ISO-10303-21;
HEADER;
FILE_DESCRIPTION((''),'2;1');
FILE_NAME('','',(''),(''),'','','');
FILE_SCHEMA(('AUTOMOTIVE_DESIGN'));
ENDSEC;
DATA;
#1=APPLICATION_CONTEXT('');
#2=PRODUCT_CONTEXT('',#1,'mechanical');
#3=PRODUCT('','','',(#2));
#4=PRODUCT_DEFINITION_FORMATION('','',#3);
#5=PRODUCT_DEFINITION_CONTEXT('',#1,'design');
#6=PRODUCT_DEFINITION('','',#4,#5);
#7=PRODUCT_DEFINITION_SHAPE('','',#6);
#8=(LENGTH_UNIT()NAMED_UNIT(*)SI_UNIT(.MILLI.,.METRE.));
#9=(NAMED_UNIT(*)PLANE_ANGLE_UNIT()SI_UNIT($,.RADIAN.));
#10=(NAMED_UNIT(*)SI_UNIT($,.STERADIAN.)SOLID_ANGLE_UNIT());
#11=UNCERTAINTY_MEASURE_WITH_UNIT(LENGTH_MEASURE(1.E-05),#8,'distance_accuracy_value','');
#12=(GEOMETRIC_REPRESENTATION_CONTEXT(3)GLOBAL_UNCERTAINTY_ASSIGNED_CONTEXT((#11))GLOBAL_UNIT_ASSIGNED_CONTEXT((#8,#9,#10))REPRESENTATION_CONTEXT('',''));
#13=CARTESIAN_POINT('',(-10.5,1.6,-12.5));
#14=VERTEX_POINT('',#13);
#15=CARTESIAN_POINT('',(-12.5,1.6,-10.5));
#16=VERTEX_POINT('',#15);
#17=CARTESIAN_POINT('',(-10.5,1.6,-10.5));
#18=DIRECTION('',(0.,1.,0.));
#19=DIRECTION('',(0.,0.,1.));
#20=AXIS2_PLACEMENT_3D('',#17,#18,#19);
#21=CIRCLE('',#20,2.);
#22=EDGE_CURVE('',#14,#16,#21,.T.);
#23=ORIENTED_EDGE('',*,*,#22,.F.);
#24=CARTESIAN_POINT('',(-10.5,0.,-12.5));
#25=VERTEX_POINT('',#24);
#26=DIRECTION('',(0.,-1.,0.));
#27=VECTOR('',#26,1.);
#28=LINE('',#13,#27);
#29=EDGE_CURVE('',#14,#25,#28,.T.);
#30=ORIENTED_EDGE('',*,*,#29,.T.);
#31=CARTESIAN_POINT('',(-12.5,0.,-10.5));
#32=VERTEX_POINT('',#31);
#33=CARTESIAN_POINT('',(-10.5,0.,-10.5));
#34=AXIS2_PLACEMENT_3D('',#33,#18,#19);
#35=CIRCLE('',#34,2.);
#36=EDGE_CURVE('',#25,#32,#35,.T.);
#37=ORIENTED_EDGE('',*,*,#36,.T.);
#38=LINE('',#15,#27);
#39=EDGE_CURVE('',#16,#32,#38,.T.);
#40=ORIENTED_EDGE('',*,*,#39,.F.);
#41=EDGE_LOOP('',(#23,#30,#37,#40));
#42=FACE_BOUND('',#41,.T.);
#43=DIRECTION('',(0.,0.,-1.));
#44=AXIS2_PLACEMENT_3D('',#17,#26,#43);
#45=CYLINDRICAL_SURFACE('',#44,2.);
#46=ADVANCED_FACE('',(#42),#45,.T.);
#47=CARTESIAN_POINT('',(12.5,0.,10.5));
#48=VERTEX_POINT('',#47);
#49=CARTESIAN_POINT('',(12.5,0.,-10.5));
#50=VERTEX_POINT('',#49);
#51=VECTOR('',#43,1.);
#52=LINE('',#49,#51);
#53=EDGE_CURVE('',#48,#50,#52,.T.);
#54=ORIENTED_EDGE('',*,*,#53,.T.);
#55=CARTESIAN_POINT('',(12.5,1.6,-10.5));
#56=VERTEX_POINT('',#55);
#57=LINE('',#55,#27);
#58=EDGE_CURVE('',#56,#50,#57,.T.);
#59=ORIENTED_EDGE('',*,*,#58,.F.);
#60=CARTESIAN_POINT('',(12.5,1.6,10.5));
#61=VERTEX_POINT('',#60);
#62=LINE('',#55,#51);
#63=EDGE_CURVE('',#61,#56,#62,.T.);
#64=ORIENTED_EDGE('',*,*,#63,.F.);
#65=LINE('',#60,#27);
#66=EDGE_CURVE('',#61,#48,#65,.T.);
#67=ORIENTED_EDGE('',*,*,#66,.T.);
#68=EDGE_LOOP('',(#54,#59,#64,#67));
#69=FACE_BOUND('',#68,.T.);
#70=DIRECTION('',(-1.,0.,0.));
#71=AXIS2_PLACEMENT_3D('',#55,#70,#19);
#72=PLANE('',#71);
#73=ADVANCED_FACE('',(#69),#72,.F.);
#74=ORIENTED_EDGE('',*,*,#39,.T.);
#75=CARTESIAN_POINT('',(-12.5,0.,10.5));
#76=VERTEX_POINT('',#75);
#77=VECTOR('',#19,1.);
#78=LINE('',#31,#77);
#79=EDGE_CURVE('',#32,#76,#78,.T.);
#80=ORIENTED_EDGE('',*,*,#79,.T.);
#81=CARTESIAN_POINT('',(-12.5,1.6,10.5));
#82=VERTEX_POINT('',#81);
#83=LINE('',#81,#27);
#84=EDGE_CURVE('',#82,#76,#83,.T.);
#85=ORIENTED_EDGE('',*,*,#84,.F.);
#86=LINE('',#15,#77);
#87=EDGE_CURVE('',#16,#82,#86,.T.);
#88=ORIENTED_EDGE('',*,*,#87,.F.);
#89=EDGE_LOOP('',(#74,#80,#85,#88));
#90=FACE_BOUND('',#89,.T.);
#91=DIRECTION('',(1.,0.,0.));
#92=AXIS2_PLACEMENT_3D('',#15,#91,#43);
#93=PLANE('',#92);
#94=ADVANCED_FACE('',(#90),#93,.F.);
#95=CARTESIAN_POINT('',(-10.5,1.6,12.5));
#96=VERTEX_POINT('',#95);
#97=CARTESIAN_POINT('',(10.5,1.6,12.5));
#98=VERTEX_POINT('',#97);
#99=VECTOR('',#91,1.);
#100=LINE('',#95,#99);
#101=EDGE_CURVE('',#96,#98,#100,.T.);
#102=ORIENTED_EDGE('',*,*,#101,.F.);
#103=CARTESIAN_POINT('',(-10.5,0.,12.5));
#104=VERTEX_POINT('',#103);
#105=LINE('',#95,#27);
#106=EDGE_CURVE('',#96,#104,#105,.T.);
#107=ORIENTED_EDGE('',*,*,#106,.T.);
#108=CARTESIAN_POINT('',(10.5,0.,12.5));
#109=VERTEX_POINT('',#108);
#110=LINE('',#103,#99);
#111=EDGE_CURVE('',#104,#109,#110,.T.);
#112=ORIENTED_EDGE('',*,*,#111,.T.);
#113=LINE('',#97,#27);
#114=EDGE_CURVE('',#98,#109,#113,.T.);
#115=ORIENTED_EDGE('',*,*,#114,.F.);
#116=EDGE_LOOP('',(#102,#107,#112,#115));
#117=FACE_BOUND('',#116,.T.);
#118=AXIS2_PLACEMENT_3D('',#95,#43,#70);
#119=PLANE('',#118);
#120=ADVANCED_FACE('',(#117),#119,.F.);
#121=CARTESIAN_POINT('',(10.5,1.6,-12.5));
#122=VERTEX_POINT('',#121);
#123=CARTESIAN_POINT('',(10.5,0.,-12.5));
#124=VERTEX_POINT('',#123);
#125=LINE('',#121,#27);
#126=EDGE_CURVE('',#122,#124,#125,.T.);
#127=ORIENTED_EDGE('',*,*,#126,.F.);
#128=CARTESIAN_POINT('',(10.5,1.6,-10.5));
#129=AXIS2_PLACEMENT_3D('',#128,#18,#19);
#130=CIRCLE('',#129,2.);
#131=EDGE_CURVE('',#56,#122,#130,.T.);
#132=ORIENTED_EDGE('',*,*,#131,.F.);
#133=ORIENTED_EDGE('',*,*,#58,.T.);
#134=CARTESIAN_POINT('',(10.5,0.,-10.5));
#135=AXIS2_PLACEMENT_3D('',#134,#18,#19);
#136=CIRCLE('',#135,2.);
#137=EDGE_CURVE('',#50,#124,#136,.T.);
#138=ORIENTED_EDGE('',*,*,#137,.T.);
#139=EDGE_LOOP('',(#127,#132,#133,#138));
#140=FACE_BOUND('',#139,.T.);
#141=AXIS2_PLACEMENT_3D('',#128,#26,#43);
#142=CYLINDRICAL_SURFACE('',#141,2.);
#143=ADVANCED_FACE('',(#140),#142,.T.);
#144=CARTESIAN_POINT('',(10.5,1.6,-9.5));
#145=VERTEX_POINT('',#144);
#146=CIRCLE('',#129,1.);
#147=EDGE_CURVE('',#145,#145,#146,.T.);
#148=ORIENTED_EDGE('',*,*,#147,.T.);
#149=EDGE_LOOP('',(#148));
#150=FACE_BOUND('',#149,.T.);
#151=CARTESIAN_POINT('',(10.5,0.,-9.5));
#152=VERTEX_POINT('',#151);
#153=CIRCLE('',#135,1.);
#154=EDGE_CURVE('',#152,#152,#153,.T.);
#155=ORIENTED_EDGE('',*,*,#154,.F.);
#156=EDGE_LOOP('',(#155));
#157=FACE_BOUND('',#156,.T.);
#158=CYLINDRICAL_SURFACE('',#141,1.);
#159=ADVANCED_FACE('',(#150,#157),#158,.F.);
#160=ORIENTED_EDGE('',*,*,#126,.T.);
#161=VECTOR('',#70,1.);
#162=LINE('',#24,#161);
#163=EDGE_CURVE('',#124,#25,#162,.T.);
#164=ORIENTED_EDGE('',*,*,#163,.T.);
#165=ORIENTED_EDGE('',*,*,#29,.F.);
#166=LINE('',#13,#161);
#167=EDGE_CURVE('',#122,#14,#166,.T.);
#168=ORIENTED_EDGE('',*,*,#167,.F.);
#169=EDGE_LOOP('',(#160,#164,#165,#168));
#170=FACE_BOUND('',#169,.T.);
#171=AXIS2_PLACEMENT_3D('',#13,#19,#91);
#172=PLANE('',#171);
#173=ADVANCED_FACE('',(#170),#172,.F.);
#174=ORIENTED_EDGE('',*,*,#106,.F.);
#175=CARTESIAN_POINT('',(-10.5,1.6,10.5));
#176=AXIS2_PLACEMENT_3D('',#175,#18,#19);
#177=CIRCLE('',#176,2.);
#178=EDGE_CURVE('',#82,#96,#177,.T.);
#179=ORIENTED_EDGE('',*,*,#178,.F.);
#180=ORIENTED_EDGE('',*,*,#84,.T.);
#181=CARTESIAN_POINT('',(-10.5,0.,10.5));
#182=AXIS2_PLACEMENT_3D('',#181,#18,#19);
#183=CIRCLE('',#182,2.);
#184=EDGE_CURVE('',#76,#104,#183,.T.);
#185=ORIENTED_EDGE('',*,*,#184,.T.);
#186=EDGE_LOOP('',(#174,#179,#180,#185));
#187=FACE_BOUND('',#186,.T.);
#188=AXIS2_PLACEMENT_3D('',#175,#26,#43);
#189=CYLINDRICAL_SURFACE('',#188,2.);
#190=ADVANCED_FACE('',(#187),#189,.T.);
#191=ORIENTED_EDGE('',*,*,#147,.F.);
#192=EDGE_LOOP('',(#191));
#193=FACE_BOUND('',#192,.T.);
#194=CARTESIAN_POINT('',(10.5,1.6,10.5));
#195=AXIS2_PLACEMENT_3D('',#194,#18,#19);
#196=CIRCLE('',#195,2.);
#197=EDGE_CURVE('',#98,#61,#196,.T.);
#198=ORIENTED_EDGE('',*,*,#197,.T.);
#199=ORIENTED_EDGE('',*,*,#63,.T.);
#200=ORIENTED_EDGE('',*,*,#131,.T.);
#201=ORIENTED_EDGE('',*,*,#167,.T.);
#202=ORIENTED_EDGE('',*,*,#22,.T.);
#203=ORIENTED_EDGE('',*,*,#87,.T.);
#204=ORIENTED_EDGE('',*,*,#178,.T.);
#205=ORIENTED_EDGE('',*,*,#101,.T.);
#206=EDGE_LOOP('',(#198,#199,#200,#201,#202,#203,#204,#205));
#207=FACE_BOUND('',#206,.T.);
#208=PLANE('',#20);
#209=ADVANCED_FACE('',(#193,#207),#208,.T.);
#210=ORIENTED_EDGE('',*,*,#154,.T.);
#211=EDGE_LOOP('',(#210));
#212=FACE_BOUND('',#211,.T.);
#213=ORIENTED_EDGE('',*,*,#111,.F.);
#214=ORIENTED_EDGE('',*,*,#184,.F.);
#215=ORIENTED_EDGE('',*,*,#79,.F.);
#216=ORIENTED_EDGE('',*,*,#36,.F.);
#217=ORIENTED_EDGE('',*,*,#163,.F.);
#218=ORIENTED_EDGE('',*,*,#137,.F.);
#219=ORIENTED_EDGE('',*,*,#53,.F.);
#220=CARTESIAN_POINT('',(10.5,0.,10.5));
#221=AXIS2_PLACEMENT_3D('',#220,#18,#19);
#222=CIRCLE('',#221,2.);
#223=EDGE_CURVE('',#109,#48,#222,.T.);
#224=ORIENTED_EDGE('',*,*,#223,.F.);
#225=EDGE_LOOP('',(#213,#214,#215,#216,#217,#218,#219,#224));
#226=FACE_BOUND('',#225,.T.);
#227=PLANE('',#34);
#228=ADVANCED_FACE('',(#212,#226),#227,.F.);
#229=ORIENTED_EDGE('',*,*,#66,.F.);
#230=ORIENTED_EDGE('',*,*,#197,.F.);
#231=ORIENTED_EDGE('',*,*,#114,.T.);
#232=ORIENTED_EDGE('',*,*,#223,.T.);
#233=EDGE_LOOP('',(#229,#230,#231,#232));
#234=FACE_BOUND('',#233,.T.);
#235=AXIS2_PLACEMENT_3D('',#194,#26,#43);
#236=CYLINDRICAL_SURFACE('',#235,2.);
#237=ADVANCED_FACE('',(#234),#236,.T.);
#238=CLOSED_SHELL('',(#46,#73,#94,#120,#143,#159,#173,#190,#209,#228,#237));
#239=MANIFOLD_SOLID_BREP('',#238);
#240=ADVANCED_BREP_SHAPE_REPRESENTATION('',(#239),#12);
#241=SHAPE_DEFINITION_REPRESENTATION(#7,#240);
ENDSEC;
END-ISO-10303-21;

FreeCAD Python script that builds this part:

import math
import FreeCAD as App
import Part
import Sketcher
from FreeCAD import Vector

doc = App.newDocument("Part")
body = doc.addObject("PartDesign::Body", "Body")

# Sketch on XZ plane
sketch1 = body.newObject("Sketcher::SketchObject", "Sketch")
sketch1.AttachmentSupport = (doc.getObject("XZ_Plane"), [""])
sketch1.MapMode = "FlatFace"
sketch1.addGeometry([
    Part.LineSegment(Vector(10.5, -12.5, 0), Vector(-10.5, -12.5, 0)),  # 0
    Part.ArcOfCircle(Part.Circle(Vector(-10.5, -10.5, 0), Vector(0, 0, 1), 2), math.radians(-180), math.radians(-90)),  # 1
    Part.LineSegment(Vector(-12.5, -10.5, 0), Vector(-12.5, 10.5, 0)),  # 2
    Part.ArcOfCircle(Part.Circle(Vector(-10.5, 10.5, 0), Vector(0, 0, 1), 2), math.radians(90), math.radians(180)),  # 3
    Part.LineSegment(Vector(-10.5, 12.5, 0), Vector(10.5, 12.5, 0)),  # 4
    Part.ArcOfCircle(Part.Circle(Vector(10.5, 10.5, 0), Vector(0, 0, 1), 2), math.radians(0), math.radians(90)),  # 5
    Part.LineSegment(Vector(12.5, 10.5, 0), Vector(12.5, -10.5, 0)),  # 6
    Part.ArcOfCircle(Part.Circle(Vector(10.5, -10.5, 0), Vector(0, 0, 1), 2), math.radians(-90), math.radians(0)),  # 7
    Part.Circle(Vector(10.5, -10.5, 0), Vector(0, 0, 1), 1),  # 8
], False)
sketch1.addConstraint([
    Sketcher.Constraint("Tangent", 0, 2, 1, 2),
    Sketcher.Constraint("Tangent", 1, 1, 2, 1),
    Sketcher.Constraint("Tangent", 2, 2, 3, 2),
    Sketcher.Constraint("Tangent", 3, 1, 4, 1),
    Sketcher.Constraint("Tangent", 4, 2, 5, 2),
    Sketcher.Constraint("Tangent", 5, 1, 6, 1),
    Sketcher.Constraint("Tangent", 6, 2, 7, 2),
    Sketcher.Constraint("Tangent", 7, 1, 0, 1),
    Sketcher.Constraint("Horizontal", 0),
    Sketcher.Constraint("Vertical", 2),
    Sketcher.Constraint("Horizontal", 4),
    Sketcher.Constraint("Vertical", 6),
    Sketcher.Constraint("Coincident", 8, 3, 7, 3),
    Sketcher.Constraint("Equal", 1, 3),
    Sketcher.Constraint("Equal", 3, 5),
    Sketcher.Constraint("Equal", 5, 7),
    Sketcher.Constraint("Symmetric", 1, 3, 5, 3, -1, 1),
    Sketcher.Constraint("Equal", 4, 2),
    Sketcher.Constraint("Diameter", 8, 2.0),
    Sketcher.Constraint("Radius", 1, 2.0),
    Sketcher.Constraint("DistanceX", 0, 2, 0, 1, 21.0),
])
pad1 = body.newObject("PartDesign::Pad", "Pad")
pad1.Profile = sketch1
pad1.Length = 1.6
pad1.Reversed = True

doc.recompute()
